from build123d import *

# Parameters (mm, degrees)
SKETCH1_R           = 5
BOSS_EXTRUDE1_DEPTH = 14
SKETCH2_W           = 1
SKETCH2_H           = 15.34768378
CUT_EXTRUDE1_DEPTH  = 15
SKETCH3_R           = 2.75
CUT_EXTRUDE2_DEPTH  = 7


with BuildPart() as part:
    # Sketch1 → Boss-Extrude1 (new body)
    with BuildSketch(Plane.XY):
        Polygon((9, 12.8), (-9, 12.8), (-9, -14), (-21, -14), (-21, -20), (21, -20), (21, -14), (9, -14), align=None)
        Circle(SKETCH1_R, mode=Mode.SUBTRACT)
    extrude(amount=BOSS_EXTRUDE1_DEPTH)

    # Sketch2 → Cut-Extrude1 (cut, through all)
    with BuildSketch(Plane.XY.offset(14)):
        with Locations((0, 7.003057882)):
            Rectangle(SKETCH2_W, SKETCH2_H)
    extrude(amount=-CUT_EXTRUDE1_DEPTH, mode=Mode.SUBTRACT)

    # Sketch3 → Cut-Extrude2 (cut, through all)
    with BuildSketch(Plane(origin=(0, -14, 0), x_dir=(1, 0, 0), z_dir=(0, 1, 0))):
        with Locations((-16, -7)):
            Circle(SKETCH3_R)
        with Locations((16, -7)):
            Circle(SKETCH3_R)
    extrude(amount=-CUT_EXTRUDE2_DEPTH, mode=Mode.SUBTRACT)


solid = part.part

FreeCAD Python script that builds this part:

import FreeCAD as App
import Part
import Sketcher
from FreeCAD import Vector


def add_polygon(sketch, points):
    """Adds a closed chain of lines whose ends are joined by coincident constraints."""
    first, n = sketch.GeometryCount, len(points)
    for a, b in zip(points, points[1:] + points[:1]):
        sketch.addGeometry(Part.LineSegment(App.Vector(*a, 0), App.Vector(*b, 0)), False)
    for i in range(n):
        sketch.addConstraint(Sketcher.Constraint("Coincident", first + i, 2, first + (i + 1) % n, 1))

doc = App.newDocument("Part")
params = doc.addObject("Spreadsheet::Sheet", "Params")
for row, (alias, value) in enumerate([
    ("sketch1_diameter", "10 mm"),
    ("sketch1_width", "18 mm"),
    ("sketch1_width2", "12 mm"),
    ("sketch1_height", "6 mm"),
    ("sketch1_height2", "26.8 mm"),
    ("pad1_length", "14 mm"),
    ("sketch2_width", "1 mm"),
    ("sketch3_diameter", "5.5 mm"),
], start=1):
    params.set(f"A{row}", alias)
    params.set(f"B{row}", "=" + value)
    params.setAlias(f"B{row}", alias)

body = doc.addObject("PartDesign::Body", "Body")

# Sketch on XY plane
sketch1 = doc.addObject("Sketcher::SketchObject", "Sketch")
body.addObject(sketch1)
sketch1.AttachmentSupport = (doc.XY_Plane, [""])
sketch1.MapMode = "FlatFace"
add_polygon(sketch1, [(9, 13), (-9, 13), (-9, -14), (-21, -14), (-21, -20), (21, -20), (21, -14), (9, -14)])  # lines 0-7
sketch1.addGeometry(Part.Circle(Vector(0, 0, 0), Vector(0, 0, 1), 5), False)  # 8
sketch1.addConstraint(Sketcher.Constraint("Horizontal", 0))
sketch1.addConstraint(Sketcher.Constraint("Vertical", 1))
sketch1.addConstraint(Sketcher.Constraint("Horizontal", 2))
sketch1.addConstraint(Sketcher.Constraint("Vertical", 3))
sketch1.addConstraint(Sketcher.Constraint("Horizontal", 4))
sketch1.addConstraint(Sketcher.Constraint("Vertical", 5))
sketch1.addConstraint(Sketcher.Constraint("Horizontal", 6))
sketch1.addConstraint(Sketcher.Constraint("Vertical", 7))
sketch1.addConstraint(Sketcher.Constraint("Coincident", 8, 3, -1, 1))
sketch1.addConstraint(Sketcher.Constraint("Symmetric", 2, 2, 5, 2, -2))
sketch1.addConstraint(Sketcher.Constraint("Equal", 2, 6))
sketch1.addConstraint(Sketcher.Constraint("Diameter", 8, 10.0))
sketch1.addConstraint(Sketcher.Constraint("DistanceX", 0, 2, 0, 1, 18.0))
sketch1.addConstraint(Sketcher.Constraint("DistanceX", 2, 2, 2, 1, 12.0))
sketch1.addConstraint(Sketcher.Constraint("DistanceY", 3, 2, 3, 1, 6.0))
sketch1.addConstraint(Sketcher.Constraint("DistanceY", 1, 2, 1, 1, 26.8))
sketch1.addConstraint(Sketcher.Constraint("DistanceY", 1, 2, -1, 1, 14.0))
sketch1.setExpression("Constraints[19]", "Params.sketch1_diameter")
sketch1.setExpression("Constraints[20]", "Params.sketch1_width")
sketch1.setExpression("Constraints[21]", "Params.sketch1_width2")
sketch1.setExpression("Constraints[22]", "Params.sketch1_height")
sketch1.setExpression("Constraints[23]", "Params.sketch1_height2")
pad1 = doc.addObject("PartDesign::Pad", "Pad")
body.addObject(pad1)
pad1.Profile = sketch1
pad1.setExpression("Length", "Params.pad1_length")

# Sketch on XY plane
sketch2 = doc.addObject("Sketcher::SketchObject", "Sketch001")
body.addObject(sketch2)
sketch2.AttachmentSupport = (doc.XY_Plane, [""])
sketch2.MapMode = "FlatFace"
sketch2.AttachmentOffset = App.Placement(Vector(0, 0, 14), App.Rotation())
add_polygon(sketch2, [(-0.5, 14.7), (-0.5, -0.7), (0.5, -0.7), (0.5, 14.7)])  # lines 0-3
sketch2.addConstraint(Sketcher.Constraint("Vertical", 0))
sketch2.addConstraint(Sketcher.Constraint("Horizontal", 1))
sketch2.addConstraint(Sketcher.Constraint("Vertical", 2))
sketch2.addConstraint(Sketcher.Constraint("Horizontal", 3))
sketch2.addConstraint(Sketcher.Constraint("DistanceX", 1, 1, 1, 2, 1.0))
sketch2.addConstraint(Sketcher.Constraint("DistanceX", 0, 2, -1, 1, 0.5))
sketch2.addConstraint(Sketcher.Constraint("DistanceY", -1, 1, 2, 2, 14.6769))
sketch2.addConstraint(Sketcher.Constraint("DistanceY", 0, 2, 0, 1, 15.347684))
sketch2.setExpression("Constraints[8]", "Params.sketch2_width")
pocket1 = doc.addObject("PartDesign::Pocket", "Pocket")
body.addObject(pocket1)
pocket1.Profile = sketch2
pocket1.Type = "ThroughAll"

# Sketch on XZ plane
sketch3 = doc.addObject("Sketcher::SketchObject", "Sketch002")
body.addObject(sketch3)
sketch3.AttachmentSupport = (doc.XZ_Plane, [""])
sketch3.MapMode = "FlatFace"
sketch3.AttachmentOffset = App.Placement(Vector(0, 0, 14), App.Rotation())
sketch3.addGeometry(Part.Circle(Vector(-16, 7, 0), Vector(0, 0, 1), 2.8), False)
sketch3.addGeometry(Part.Circle(Vector(16, 7, 0), Vector(0, 0, 1), 2.8), False)
sketch3.addConstraint(Sketcher.Constraint("Equal", 0, 1))
sketch3.addConstraint(Sketcher.Constraint("Symmetric", 0, 3, 1, 3, -2))
sketch3.addConstraint(Sketcher.Constraint("Diameter", 0, 5.5))
sketch3.addConstraint(Sketcher.Constraint("DistanceX", 0, 3, -1, 1, 16.0))
sketch3.addConstraint(Sketcher.Constraint("DistanceY", -1, 1, 0, 3, 7.0))
sketch3.setExpression("Constraints[2]", "Params.sketch3_diameter")
pocket2 = doc.addObject("PartDesign::Pocket", "Pocket001")
body.addObject(pocket2)
pocket2.Profile = sketch3
pocket2.Type = "ThroughAll"
pocket2.Reversed = True

doc.recompute()
